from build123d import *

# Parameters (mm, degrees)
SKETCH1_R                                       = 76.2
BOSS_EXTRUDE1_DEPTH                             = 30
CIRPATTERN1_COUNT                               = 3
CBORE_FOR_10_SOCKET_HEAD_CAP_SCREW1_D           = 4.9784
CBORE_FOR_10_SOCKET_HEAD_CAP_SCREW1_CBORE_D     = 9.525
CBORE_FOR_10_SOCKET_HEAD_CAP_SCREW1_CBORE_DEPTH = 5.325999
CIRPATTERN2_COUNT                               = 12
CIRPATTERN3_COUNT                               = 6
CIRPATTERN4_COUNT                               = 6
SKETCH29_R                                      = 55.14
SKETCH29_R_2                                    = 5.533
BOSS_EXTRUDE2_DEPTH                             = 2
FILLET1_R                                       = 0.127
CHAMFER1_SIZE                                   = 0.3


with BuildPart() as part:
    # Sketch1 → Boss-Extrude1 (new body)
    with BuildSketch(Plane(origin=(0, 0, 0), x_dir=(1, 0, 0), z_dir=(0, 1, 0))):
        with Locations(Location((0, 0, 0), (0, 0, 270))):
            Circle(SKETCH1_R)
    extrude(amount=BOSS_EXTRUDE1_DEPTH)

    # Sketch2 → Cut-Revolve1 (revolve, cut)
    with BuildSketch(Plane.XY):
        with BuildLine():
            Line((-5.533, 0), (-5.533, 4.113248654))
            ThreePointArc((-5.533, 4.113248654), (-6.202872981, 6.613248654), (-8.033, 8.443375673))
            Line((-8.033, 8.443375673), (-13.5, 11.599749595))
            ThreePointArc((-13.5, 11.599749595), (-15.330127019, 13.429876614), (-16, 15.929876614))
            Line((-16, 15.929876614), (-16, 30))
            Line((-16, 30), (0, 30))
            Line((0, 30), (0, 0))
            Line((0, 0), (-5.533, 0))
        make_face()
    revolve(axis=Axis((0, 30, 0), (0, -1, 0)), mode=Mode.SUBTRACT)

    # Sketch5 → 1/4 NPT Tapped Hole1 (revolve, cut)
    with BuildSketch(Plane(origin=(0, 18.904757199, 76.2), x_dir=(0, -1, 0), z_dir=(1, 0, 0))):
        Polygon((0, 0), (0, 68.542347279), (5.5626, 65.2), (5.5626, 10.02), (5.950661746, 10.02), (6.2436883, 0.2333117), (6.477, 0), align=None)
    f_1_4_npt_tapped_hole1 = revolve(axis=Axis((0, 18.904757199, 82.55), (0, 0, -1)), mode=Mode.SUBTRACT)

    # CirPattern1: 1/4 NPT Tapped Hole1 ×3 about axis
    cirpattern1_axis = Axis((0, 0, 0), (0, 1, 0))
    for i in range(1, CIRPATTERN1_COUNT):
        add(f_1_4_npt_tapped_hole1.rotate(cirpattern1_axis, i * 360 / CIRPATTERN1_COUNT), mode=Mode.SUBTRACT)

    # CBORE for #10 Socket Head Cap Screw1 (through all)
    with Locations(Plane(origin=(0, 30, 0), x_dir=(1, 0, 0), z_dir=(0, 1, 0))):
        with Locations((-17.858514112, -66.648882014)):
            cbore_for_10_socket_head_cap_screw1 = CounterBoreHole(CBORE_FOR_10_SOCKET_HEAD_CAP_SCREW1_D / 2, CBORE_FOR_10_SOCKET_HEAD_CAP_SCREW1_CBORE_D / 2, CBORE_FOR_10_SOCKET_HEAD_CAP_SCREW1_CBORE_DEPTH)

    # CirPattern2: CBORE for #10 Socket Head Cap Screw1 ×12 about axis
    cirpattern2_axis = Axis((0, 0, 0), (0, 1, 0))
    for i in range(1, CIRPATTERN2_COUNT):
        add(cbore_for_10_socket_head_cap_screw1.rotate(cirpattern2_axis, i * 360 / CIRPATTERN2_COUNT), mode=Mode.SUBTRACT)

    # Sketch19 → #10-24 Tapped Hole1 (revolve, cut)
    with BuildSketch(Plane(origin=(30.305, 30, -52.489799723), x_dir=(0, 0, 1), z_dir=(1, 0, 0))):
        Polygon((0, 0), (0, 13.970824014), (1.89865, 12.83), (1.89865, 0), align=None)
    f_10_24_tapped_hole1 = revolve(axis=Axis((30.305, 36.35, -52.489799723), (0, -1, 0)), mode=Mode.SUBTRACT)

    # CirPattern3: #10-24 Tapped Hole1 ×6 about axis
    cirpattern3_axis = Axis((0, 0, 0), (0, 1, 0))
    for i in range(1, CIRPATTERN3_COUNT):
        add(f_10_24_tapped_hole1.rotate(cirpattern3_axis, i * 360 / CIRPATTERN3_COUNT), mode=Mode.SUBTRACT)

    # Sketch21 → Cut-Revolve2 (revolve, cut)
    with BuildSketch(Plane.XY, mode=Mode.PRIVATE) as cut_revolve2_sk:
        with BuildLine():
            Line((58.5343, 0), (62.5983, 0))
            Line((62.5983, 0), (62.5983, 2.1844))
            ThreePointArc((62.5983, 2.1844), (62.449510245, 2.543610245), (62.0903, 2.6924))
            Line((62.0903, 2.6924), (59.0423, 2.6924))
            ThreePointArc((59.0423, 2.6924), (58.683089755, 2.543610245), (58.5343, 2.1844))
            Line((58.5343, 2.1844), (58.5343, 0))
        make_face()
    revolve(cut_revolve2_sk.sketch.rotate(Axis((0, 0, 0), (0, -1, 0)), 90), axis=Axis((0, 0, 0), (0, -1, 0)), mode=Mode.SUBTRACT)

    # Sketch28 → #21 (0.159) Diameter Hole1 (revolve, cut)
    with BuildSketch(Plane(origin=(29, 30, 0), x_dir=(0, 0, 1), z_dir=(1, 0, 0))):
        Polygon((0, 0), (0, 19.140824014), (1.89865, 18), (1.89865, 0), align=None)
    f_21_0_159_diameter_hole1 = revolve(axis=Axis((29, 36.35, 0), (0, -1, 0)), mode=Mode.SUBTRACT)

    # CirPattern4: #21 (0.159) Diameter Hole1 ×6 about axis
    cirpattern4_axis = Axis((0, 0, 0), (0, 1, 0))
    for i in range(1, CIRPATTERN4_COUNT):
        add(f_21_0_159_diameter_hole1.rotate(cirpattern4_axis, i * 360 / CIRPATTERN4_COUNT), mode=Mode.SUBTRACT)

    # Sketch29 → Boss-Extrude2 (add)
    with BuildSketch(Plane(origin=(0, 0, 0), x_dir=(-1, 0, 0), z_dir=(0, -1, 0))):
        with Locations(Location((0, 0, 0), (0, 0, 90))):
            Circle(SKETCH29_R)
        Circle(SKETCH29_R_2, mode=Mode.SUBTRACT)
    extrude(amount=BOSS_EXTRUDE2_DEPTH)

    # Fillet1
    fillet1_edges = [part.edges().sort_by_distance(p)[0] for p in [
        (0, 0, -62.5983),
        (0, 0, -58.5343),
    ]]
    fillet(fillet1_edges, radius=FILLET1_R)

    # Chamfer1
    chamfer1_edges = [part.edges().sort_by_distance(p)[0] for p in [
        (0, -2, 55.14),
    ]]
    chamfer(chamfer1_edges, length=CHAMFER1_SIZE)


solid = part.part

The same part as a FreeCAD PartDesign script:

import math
import FreeCAD as App
import Part
import Sketcher
Q = App.Units.Quantity


def edges_at(feature, points):
    """Names of the edges that pass closest to the given points."""
    edges = feature.Shape.Edges
    near = lambda p: min(range(len(edges)), key=lambda i: edges[i].distToShape(Part.Vertex(*p))[0])
    return sorted({f"Edge{near(p) + 1}" for p in points})


def add_polygon(sketch, points):
    """Adds a closed chain of lines whose ends are joined by coincident constraints."""
    first, n = sketch.GeometryCount, len(points)
    for a, b in zip(points, points[1:] + points[:1]):
        sketch.addGeometry(Part.LineSegment(App.Vector(*a, 0), App.Vector(*b, 0)), False)
    for i in range(n):
        sketch.addConstraint(Sketcher.Constraint("Coincident", first + i, 2, first + (i + 1) % n, 1))

doc = App.newDocument("Part")
body = doc.addObject("PartDesign::Body", "Body")

# Sketch on XZ plane
sketch1 = doc.addObject("Sketcher::SketchObject", "Sketch")
body.addObject(sketch1)
sketch1.AttachmentSupport = (doc.XZ_Plane, [""])
sketch1.MapMode = "FlatFace"
sketch1.addGeometry(Part.Circle(App.Vector(0, 0, 0), App.Vector(0, 0, 1), 76), False)
sketch1.addConstraint(Sketcher.Constraint("Coincident", 0, 3, -1, 1))
sketch1.addConstraint(Sketcher.Constraint("Diameter", 0, Q("6 in")))
pad1 = doc.addObject("PartDesign::Pad", "Pad")
body.addObject(pad1)
pad1.Profile = sketch1
pad1.Length = 30
pad1.Reversed = True

# Sketch on XY plane
sketch2 = doc.addObject("Sketcher::SketchObject", "Sketch001")
body.addObject(sketch2)
sketch2.AttachmentSupport = (doc.XY_Plane, [""])
sketch2.MapMode = "FlatFace"
sketch2.addGeometry(Part.LineSegment(App.Vector(-5.5, 4.1, 0), App.Vector(-5.5, 0, 0)), False)
sketch2.addGeometry(Part.LineSegment(App.Vector(-5.5, 0, 0), App.Vector(0, 0, 0)), False)
sketch2.addGeometry(Part.LineSegment(App.Vector(0, 0, 0), App.Vector(0, 30, 0)), False)
sketch2.addGeometry(Part.LineSegment(App.Vector(0, 30, 0), App.Vector(-16, 30, 0)), False)
sketch2.addGeometry(Part.LineSegment(App.Vector(-16, 30, 0), App.Vector(-16, 15.9, 0)), False)
sketch2.addGeometry(Part.ArcOfCircle(Part.Circle(App.Vector(-11, 15.9, 0), App.Vector(0, 0, 1), 5), math.radians(180), math.radians(240)), False)
sketch2.addGeometry(Part.LineSegment(App.Vector(-13.5, 11.6, 0), App.Vector(-8, 8.4, 0)), False)
sketch2.addGeometry(Part.ArcOfCircle(Part.Circle(App.Vector(-10.5, 4.1, 0), App.Vector(0, 0, 1), 5), math.radians(0), math.radians(60)), False)
sketch2.addConstraint(Sketcher.Constraint("Coincident", 0, 2, 1, 1))
sketch2.addConstraint(Sketcher.Constraint("Coincident", 1, 2, 2, 1))
sketch2.addConstraint(Sketcher.Constraint("Coincident", 2, 2, 3, 1))
sketch2.addConstraint(Sketcher.Constraint("Coincident", 3, 2, 4, 1))
sketch2.addConstraint(Sketcher.Constraint("Tangent", 4, 2, 5, 1))
sketch2.addConstraint(Sketcher.Constraint("Tangent", 5, 2, 6, 1))
sketch2.addConstraint(Sketcher.Constraint("Tangent", 6, 2, 7, 2))
sketch2.addConstraint(Sketcher.Constraint("Tangent", 7, 1, 0, 1))
sketch2.addConstraint(Sketcher.Constraint("Vertical", 0))
sketch2.addConstraint(Sketcher.Constraint("Horizontal", 1))
sketch2.addConstraint(Sketcher.Constraint("Vertical", 2))
sketch2.addConstraint(Sketcher.Constraint("Horizontal", 3))
sketch2.addConstraint(Sketcher.Constraint("Vertical", 4))
sketch2.addConstraint(Sketcher.Constraint("Coincident", 1, 2, -1, 1))
sketch2.addConstraint(Sketcher.Constraint("Equal", 5, 7))
sketch2.addConstraint(Sketcher.Constraint("Angle", 6, Q("-30 deg")))
sketch2.addConstraint(Sketcher.Constraint("Radius", 5, 5.0))
sketch2.addConstraint(Sketcher.Constraint("DistanceX", 1, 1, 1, 2, 5.533))
sketch2.addConstraint(Sketcher.Constraint("DistanceX", 3, 2, 3, 1, 16.0))
sketch2.addConstraint(Sketcher.Constraint("DistanceY", 2, 1, 2, 2, 30.0))
sketch2.addConstraint(Sketcher.Constraint("DistanceY", 0, 2, 0, 1, 4.113249))
groove = doc.addObject("PartDesign::Groove", "Groove")
body.addObject(groove)
groove.Profile = sketch2
groove.ReferenceAxis = (sketch2, ["V_Axis"])
groove.Angle = 360

# Sketch on YZ plane
sketch3 = doc.addObject("Sketcher::SketchObject", "Sketch002")
body.addObject(sketch3)
sketch3.AttachmentSupport = (doc.YZ_Plane, [""])
sketch3.MapMode = "FlatFace"
add_polygon(sketch3, [(18.9, 7.66), (18.9, 76.2), (12.43, 76.2), (12.66, 75.97), (12.95, 66.18), (13.34, 66.18), (13.34, 11)])  # lines 0-6
sketch3.addGeometry(Part.LineSegment(App.Vector(18.9, 76.2, 0), App.Vector(18.9, 7.66, 0)), True)  # axis
sketch3.addConstraint(Sketcher.Constraint("Vertical", 0))
sketch3.addConstraint(Sketcher.Constraint("Horizontal", 1))
sketch3.addConstraint(Sketcher.Constraint("Horizontal", 4))
sketch3.addConstraint(Sketcher.Constraint("Vertical", 5))
sketch3.addConstraint(Sketcher.Constraint("Vertical", 7))
sketch3.addConstraint(Sketcher.Constraint("Coincident", 7, 1, 0, 2))
sketch3.addConstraint(Sketcher.Constraint("Equal", 0, 7))
sketch3.addConstraint(Sketcher.Constraint("DistanceY", -1, 1, 0, 2, Q("3 in")))
sketch3.addConstraint(Sketcher.Constraint("Angle", 2, Q("-45 deg")))
sketch3.addConstraint(Sketcher.Constraint("Angle", 6, Q("-31 deg")))
sketch3.addConstraint(Sketcher.Constraint("DistanceX", 1, 2, 1, 1, Q("0.255 in")))
sketch3.addConstraint(Sketcher.Constraint("DistanceX", 1, 2, 4, 2, Q("0.036 in")))
sketch3.addConstraint(Sketcher.Constraint("DistanceY", 5, 2, 5, 1, 55.18))
sketch3.addConstraint(Sketcher.Constraint("DistanceX", 4, 1, 4, 2, 0.388062))
sketch3.addConstraint(Sketcher.Constraint("DistanceY", -1, 1, 3, 2, 66.18))
sketch3.addConstraint(Sketcher.Constraint("DistanceX", -1, 1, 2, 2, 12.661069))
sketch3.addConstraint(Sketcher.Constraint("DistanceY", -1, 1, 2, 2, 75.966688))
groove2 = doc.addObject("PartDesign::Groove", "Groove001")
body.addObject(groove2)
groove2.Profile = sketch3
groove2.ReferenceAxis = (sketch3, ["Axis0"])
groove2.Angle = 360
doc.recompute()

polarpattern = doc.addObject("PartDesign::PolarPattern", "PolarPattern")
body.addObject(polarpattern)
polarpattern.Originals = [groove2]
polarpattern.Axis = (doc.Y_Axis, [""])
polarpattern.Angle = 360
polarpattern.Occurrences = 3
body.Tip = polarpattern

# Sketch on XZ plane
sketch4 = doc.addObject("Sketcher::SketchObject", "Sketch003")
body.addObject(sketch4)
sketch4.AttachmentSupport = (doc.XZ_Plane, [""])
sketch4.MapMode = "FlatFace"
sketch4.AttachmentOffset = App.Placement(App.Vector(0, 0, -30), App.Rotation())
sketch4.addGeometry(Part.Circle(App.Vector(-17.9, 66.6, 0), App.Vector(0, 0, 1), 2.5), False)
sketch4.addConstraint(Sketcher.Constraint("Diameter", 0, Q("0.196 in")))
sketch4.addConstraint(Sketcher.Constraint("DistanceX", 0, 3, -1, 1, 17.858514))
sketch4.addConstraint(Sketcher.Constraint("DistanceY", -1, 1, 0, 3, 66.648882))
doc.recompute()
hole = doc.addObject("PartDesign::Hole", "Hole")
body.addObject(hole)
hole.Profile = sketch4
hole.ThreadType = "None"
hole.Diameter = Q("0.196 in")
hole.DepthType = "ThroughAll"
hole.HoleCutType = "Counterbore"
hole.HoleCutDiameter = Q("0.375 in")
hole.HoleCutDepth = 5.325999
hole.Reversed = True
doc.recompute()

polarpattern2 = doc.addObject("PartDesign::PolarPattern", "PolarPattern001")
body.addObject(polarpattern2)
polarpattern2.Originals = [hole]
polarpattern2.Axis = (doc.Y_Axis, [""])
polarpattern2.Angle = 360
polarpattern2.Occurrences = 12
body.Tip = polarpattern2

# Sketch on YZ plane
sketch5 = doc.addObject("Sketcher::SketchObject", "Sketch004")
body.addObject(sketch5)
sketch5.AttachmentSupport = (doc.YZ_Plane, [""])
sketch5.MapMode = "FlatFace"
sketch5.AttachmentOffset = App.Placement(App.Vector(0, 0, 30.305), App.Rotation())
add_polygon(sketch5, [(16, -52.5), (30, -52.5), (30, -50.6), (17.2, -50.6)])  # lines 0-3
sketch5.addGeometry(Part.LineSegment(App.Vector(30, -52.5, 0), App.Vector(16, -52.5, 0)), True)  # axis
sketch5.addConstraint(Sketcher.Constraint("Horizontal", 0))
sketch5.addConstraint(Sketcher.Constraint("Vertical", 1))
sketch5.addConstraint(Sketcher.Constraint("Horizontal", 2))
sketch5.addConstraint(Sketcher.Constraint("Horizontal", 4))
sketch5.addConstraint(Sketcher.Constraint("Coincident", 4, 1, 0, 2))
sketch5.addConstraint(Sketcher.Constraint("Equal", 0, 4))
sketch5.addConstraint(Sketcher.Constraint("Angle", 3, Q("-121 deg")))
sketch5.addConstraint(Sketcher.Constraint("DistanceX", 2, 2, 2, 1, 12.83))
sketch5.addConstraint(Sketcher.Constraint("DistanceY", 1, 1, 1, 2, 1.89865))
sketch5.addConstraint(Sketcher.Constraint("DistanceX", -1, 1, 0, 2, 30.0))
sketch5.addConstraint(Sketcher.Constraint("DistanceY", 0, 2, -1, 1, 52.4898))
groove3 = doc.addObject("PartDesign::Groove", "Groove002")
body.addObject(groove3)
groove3.Profile = sketch5
groove3.ReferenceAxis = (sketch5, ["Axis0"])
groove3.Angle = 360
doc.recompute()

polarpattern3 = doc.addObject("PartDesign::PolarPattern", "PolarPattern002")
body.addObject(polarpattern3)
polarpattern3.Originals = [groove3]
polarpattern3.Axis = (doc.Y_Axis, [""])
polarpattern3.Angle = 360
polarpattern3.Occurrences = 6
body.Tip = polarpattern3

# Sketch on XY plane
sketch6 = doc.addObject("Sketcher::SketchObject", "Sketch005")
body.addObject(sketch6)
sketch6.AttachmentSupport = (doc.XY_Plane, [""])
sketch6.MapMode = "FlatFace"
sketch6.addGeometry(Part.LineSegment(App.Vector(58.5, 0, 0), App.Vector(62.6, 0, 0)), False)
sketch6.addGeometry(Part.LineSegment(App.Vector(62.6, 0, 0), App.Vector(62.6, 2.2, 0)), False)
sketch6.addGeometry(Part.ArcOfCircle(Part.Circle(App.Vector(62.1, 2.2, 0), App.Vector(0, 0, 1), 0.5), math.radians(0), math.radians(90)), False)
sketch6.addGeometry(Part.LineSegment(App.Vector(62.1, 2.7, 0), App.Vector(59, 2.7, 0)), False)
sketch6.addGeometry(Part.ArcOfCircle(Part.Circle(App.Vector(59, 2.2, 0), App.Vector(0, 0, 1), 0.5), math.radians(90), math.radians(180)), False)
sketch6.addGeometry(Part.LineSegment(App.Vector(58.5, 2.2, 0), App.Vector(58.5, 0, 0)), False)
sketch6.addConstraint(Sketcher.Constraint("Coincident", 0, 2, 1, 1))
sketch6.addConstraint(Sketcher.Constraint("Tangent", 1, 2, 2, 1))
sketch6.addConstraint(Sketcher.Constraint("Tangent", 2, 2, 3, 1))
sketch6.addConstraint(Sketcher.Constraint("Tangent", 3, 2, 4, 1))
sketch6.addConstraint(Sketcher.Constraint("Tangent", 4, 2, 5, 1))
sketch6.addConstraint(Sketcher.Constraint("Coincident", 5, 2, 0, 1))
sketch6.addConstraint(Sketcher.Constraint("Horizontal", 0))
sketch6.addConstraint(Sketcher.Constraint("Vertical", 1))
sketch6.addConstraint(Sketcher.Constraint("Horizontal", 3))
sketch6.addConstraint(Sketcher.Constraint("Vertical", 5))
sketch6.addConstraint(Sketcher.Constraint("Equal", 2, 4))
sketch6.addConstraint(Sketcher.Constraint("PointOnObject", 0, 2, -1))
sketch6.addConstraint(Sketcher.Constraint("Radius", 2, Q("0.02 in")))
sketch6.addConstraint(Sketcher.Constraint("DistanceX", 0, 1, 0, 2, Q("0.16 in")))
sketch6.addConstraint(Sketcher.Constraint("DistanceY", 1, 1, 1, 2, Q("0.086 in")))
sketch6.addConstraint(Sketcher.Constraint("DistanceX", -1, 1, 2, 3, Q("2.4445 in")))
groove4 = doc.addObject("PartDesign::Groove", "Groove003")
body.addObject(groove4)
groove4.Profile = sketch6
groove4.ReferenceAxis = (sketch6, ["V_Axis"])
groove4.Angle = 360

# Sketch on YZ plane
sketch7 = doc.addObject("Sketcher::SketchObject", "Sketch006")
body.addObject(sketch7)
sketch7.AttachmentSupport = (doc.YZ_Plane, [""])
sketch7.MapMode = "FlatFace"
sketch7.AttachmentOffset = App.Placement(App.Vector(0, 0, 29), App.Rotation())
add_polygon(sketch7, [(10.9, 0), (30, 0), (30, 1.9), (12, 1.9)])  # lines 0-3
sketch7.addConstraint(Sketcher.Constraint("Horizontal", 0))
sketch7.addConstraint(Sketcher.Constraint("Vertical", 1))
sketch7.addConstraint(Sketcher.Constraint("Horizontal", 2))
sketch7.addConstraint(Sketcher.Constraint("PointOnObject", 0, 2, -1))
sketch7.addConstraint(Sketcher.Constraint("Angle", 3, Q("-121 deg")))
sketch7.addConstraint(Sketcher.Constraint("DistanceX", 2, 2, 2, 1, 18.0))
sketch7.addConstraint(Sketcher.Constraint("DistanceY", 1, 1, 1, 2, 1.89865))
sketch7.addConstraint(Sketcher.Constraint("DistanceX", -1, 1, 0, 2, 30.0))
groove5 = doc.addObject("PartDesign::Groove", "Groove004")
body.addObject(groove5)
groove5.Profile = sketch7
groove5.ReferenceAxis = (sketch7, ["H_Axis"])
groove5.Angle = 360
doc.recompute()

polarpattern4 = doc.addObject("PartDesign::PolarPattern", "PolarPattern003")
body.addObject(polarpattern4)
polarpattern4.Originals = [groove5]
polarpattern4.Axis = (doc.Y_Axis, [""])
polarpattern4.Angle = 360
polarpattern4.Occurrences = 6
body.Tip = polarpattern4

# Sketch on XZ plane
sketch8 = doc.addObject("Sketcher::SketchObject", "Sketch007")
body.addObject(sketch8)
sketch8.AttachmentSupport = (doc.XZ_Plane, [""])
sketch8.MapMode = "FlatFace"
sketch8.addGeometry(Part.Circle(App.Vector(0, 0, 0), App.Vector(0, 0, 1), 55), False)
sketch8.addGeometry(Part.Circle(App.Vector(0, 0, 0), App.Vector(0, 0, 1), 6), False)
sketch8.addConstraint(Sketcher.Constraint("Coincident", 0, 3, -1, 1))
sketch8.addConstraint(Sketcher.Constraint("Coincident", 1, 3, -1, 1))
sketch8.addConstraint(Sketcher.Constraint("Diameter", 0, 110.28))
sketch8.addConstraint(Sketcher.Constraint("Diameter", 1, 11.066))
pad2 = doc.addObject("PartDesign::Pad", "Pad001")
body.addObject(pad2)
pad2.Profile = sketch8
pad2.Length = 2
doc.recompute()

fillet = doc.addObject("PartDesign::Fillet", "Fillet")
body.addObject(fillet)
fillet.Base = (pad2, edges_at(pad2, [(0, 0, -62.598), (0, 0, -58.534)]))
fillet.Radius = Q("0.005 in")
doc.recompute()

chamfer = doc.addObject("PartDesign::Chamfer", "Chamfer")
body.addObject(chamfer)
chamfer.Base = (fillet, edges_at(fillet, [(0, -2, 55.14)]))
chamfer.Size = 0.3

doc.recompute()
